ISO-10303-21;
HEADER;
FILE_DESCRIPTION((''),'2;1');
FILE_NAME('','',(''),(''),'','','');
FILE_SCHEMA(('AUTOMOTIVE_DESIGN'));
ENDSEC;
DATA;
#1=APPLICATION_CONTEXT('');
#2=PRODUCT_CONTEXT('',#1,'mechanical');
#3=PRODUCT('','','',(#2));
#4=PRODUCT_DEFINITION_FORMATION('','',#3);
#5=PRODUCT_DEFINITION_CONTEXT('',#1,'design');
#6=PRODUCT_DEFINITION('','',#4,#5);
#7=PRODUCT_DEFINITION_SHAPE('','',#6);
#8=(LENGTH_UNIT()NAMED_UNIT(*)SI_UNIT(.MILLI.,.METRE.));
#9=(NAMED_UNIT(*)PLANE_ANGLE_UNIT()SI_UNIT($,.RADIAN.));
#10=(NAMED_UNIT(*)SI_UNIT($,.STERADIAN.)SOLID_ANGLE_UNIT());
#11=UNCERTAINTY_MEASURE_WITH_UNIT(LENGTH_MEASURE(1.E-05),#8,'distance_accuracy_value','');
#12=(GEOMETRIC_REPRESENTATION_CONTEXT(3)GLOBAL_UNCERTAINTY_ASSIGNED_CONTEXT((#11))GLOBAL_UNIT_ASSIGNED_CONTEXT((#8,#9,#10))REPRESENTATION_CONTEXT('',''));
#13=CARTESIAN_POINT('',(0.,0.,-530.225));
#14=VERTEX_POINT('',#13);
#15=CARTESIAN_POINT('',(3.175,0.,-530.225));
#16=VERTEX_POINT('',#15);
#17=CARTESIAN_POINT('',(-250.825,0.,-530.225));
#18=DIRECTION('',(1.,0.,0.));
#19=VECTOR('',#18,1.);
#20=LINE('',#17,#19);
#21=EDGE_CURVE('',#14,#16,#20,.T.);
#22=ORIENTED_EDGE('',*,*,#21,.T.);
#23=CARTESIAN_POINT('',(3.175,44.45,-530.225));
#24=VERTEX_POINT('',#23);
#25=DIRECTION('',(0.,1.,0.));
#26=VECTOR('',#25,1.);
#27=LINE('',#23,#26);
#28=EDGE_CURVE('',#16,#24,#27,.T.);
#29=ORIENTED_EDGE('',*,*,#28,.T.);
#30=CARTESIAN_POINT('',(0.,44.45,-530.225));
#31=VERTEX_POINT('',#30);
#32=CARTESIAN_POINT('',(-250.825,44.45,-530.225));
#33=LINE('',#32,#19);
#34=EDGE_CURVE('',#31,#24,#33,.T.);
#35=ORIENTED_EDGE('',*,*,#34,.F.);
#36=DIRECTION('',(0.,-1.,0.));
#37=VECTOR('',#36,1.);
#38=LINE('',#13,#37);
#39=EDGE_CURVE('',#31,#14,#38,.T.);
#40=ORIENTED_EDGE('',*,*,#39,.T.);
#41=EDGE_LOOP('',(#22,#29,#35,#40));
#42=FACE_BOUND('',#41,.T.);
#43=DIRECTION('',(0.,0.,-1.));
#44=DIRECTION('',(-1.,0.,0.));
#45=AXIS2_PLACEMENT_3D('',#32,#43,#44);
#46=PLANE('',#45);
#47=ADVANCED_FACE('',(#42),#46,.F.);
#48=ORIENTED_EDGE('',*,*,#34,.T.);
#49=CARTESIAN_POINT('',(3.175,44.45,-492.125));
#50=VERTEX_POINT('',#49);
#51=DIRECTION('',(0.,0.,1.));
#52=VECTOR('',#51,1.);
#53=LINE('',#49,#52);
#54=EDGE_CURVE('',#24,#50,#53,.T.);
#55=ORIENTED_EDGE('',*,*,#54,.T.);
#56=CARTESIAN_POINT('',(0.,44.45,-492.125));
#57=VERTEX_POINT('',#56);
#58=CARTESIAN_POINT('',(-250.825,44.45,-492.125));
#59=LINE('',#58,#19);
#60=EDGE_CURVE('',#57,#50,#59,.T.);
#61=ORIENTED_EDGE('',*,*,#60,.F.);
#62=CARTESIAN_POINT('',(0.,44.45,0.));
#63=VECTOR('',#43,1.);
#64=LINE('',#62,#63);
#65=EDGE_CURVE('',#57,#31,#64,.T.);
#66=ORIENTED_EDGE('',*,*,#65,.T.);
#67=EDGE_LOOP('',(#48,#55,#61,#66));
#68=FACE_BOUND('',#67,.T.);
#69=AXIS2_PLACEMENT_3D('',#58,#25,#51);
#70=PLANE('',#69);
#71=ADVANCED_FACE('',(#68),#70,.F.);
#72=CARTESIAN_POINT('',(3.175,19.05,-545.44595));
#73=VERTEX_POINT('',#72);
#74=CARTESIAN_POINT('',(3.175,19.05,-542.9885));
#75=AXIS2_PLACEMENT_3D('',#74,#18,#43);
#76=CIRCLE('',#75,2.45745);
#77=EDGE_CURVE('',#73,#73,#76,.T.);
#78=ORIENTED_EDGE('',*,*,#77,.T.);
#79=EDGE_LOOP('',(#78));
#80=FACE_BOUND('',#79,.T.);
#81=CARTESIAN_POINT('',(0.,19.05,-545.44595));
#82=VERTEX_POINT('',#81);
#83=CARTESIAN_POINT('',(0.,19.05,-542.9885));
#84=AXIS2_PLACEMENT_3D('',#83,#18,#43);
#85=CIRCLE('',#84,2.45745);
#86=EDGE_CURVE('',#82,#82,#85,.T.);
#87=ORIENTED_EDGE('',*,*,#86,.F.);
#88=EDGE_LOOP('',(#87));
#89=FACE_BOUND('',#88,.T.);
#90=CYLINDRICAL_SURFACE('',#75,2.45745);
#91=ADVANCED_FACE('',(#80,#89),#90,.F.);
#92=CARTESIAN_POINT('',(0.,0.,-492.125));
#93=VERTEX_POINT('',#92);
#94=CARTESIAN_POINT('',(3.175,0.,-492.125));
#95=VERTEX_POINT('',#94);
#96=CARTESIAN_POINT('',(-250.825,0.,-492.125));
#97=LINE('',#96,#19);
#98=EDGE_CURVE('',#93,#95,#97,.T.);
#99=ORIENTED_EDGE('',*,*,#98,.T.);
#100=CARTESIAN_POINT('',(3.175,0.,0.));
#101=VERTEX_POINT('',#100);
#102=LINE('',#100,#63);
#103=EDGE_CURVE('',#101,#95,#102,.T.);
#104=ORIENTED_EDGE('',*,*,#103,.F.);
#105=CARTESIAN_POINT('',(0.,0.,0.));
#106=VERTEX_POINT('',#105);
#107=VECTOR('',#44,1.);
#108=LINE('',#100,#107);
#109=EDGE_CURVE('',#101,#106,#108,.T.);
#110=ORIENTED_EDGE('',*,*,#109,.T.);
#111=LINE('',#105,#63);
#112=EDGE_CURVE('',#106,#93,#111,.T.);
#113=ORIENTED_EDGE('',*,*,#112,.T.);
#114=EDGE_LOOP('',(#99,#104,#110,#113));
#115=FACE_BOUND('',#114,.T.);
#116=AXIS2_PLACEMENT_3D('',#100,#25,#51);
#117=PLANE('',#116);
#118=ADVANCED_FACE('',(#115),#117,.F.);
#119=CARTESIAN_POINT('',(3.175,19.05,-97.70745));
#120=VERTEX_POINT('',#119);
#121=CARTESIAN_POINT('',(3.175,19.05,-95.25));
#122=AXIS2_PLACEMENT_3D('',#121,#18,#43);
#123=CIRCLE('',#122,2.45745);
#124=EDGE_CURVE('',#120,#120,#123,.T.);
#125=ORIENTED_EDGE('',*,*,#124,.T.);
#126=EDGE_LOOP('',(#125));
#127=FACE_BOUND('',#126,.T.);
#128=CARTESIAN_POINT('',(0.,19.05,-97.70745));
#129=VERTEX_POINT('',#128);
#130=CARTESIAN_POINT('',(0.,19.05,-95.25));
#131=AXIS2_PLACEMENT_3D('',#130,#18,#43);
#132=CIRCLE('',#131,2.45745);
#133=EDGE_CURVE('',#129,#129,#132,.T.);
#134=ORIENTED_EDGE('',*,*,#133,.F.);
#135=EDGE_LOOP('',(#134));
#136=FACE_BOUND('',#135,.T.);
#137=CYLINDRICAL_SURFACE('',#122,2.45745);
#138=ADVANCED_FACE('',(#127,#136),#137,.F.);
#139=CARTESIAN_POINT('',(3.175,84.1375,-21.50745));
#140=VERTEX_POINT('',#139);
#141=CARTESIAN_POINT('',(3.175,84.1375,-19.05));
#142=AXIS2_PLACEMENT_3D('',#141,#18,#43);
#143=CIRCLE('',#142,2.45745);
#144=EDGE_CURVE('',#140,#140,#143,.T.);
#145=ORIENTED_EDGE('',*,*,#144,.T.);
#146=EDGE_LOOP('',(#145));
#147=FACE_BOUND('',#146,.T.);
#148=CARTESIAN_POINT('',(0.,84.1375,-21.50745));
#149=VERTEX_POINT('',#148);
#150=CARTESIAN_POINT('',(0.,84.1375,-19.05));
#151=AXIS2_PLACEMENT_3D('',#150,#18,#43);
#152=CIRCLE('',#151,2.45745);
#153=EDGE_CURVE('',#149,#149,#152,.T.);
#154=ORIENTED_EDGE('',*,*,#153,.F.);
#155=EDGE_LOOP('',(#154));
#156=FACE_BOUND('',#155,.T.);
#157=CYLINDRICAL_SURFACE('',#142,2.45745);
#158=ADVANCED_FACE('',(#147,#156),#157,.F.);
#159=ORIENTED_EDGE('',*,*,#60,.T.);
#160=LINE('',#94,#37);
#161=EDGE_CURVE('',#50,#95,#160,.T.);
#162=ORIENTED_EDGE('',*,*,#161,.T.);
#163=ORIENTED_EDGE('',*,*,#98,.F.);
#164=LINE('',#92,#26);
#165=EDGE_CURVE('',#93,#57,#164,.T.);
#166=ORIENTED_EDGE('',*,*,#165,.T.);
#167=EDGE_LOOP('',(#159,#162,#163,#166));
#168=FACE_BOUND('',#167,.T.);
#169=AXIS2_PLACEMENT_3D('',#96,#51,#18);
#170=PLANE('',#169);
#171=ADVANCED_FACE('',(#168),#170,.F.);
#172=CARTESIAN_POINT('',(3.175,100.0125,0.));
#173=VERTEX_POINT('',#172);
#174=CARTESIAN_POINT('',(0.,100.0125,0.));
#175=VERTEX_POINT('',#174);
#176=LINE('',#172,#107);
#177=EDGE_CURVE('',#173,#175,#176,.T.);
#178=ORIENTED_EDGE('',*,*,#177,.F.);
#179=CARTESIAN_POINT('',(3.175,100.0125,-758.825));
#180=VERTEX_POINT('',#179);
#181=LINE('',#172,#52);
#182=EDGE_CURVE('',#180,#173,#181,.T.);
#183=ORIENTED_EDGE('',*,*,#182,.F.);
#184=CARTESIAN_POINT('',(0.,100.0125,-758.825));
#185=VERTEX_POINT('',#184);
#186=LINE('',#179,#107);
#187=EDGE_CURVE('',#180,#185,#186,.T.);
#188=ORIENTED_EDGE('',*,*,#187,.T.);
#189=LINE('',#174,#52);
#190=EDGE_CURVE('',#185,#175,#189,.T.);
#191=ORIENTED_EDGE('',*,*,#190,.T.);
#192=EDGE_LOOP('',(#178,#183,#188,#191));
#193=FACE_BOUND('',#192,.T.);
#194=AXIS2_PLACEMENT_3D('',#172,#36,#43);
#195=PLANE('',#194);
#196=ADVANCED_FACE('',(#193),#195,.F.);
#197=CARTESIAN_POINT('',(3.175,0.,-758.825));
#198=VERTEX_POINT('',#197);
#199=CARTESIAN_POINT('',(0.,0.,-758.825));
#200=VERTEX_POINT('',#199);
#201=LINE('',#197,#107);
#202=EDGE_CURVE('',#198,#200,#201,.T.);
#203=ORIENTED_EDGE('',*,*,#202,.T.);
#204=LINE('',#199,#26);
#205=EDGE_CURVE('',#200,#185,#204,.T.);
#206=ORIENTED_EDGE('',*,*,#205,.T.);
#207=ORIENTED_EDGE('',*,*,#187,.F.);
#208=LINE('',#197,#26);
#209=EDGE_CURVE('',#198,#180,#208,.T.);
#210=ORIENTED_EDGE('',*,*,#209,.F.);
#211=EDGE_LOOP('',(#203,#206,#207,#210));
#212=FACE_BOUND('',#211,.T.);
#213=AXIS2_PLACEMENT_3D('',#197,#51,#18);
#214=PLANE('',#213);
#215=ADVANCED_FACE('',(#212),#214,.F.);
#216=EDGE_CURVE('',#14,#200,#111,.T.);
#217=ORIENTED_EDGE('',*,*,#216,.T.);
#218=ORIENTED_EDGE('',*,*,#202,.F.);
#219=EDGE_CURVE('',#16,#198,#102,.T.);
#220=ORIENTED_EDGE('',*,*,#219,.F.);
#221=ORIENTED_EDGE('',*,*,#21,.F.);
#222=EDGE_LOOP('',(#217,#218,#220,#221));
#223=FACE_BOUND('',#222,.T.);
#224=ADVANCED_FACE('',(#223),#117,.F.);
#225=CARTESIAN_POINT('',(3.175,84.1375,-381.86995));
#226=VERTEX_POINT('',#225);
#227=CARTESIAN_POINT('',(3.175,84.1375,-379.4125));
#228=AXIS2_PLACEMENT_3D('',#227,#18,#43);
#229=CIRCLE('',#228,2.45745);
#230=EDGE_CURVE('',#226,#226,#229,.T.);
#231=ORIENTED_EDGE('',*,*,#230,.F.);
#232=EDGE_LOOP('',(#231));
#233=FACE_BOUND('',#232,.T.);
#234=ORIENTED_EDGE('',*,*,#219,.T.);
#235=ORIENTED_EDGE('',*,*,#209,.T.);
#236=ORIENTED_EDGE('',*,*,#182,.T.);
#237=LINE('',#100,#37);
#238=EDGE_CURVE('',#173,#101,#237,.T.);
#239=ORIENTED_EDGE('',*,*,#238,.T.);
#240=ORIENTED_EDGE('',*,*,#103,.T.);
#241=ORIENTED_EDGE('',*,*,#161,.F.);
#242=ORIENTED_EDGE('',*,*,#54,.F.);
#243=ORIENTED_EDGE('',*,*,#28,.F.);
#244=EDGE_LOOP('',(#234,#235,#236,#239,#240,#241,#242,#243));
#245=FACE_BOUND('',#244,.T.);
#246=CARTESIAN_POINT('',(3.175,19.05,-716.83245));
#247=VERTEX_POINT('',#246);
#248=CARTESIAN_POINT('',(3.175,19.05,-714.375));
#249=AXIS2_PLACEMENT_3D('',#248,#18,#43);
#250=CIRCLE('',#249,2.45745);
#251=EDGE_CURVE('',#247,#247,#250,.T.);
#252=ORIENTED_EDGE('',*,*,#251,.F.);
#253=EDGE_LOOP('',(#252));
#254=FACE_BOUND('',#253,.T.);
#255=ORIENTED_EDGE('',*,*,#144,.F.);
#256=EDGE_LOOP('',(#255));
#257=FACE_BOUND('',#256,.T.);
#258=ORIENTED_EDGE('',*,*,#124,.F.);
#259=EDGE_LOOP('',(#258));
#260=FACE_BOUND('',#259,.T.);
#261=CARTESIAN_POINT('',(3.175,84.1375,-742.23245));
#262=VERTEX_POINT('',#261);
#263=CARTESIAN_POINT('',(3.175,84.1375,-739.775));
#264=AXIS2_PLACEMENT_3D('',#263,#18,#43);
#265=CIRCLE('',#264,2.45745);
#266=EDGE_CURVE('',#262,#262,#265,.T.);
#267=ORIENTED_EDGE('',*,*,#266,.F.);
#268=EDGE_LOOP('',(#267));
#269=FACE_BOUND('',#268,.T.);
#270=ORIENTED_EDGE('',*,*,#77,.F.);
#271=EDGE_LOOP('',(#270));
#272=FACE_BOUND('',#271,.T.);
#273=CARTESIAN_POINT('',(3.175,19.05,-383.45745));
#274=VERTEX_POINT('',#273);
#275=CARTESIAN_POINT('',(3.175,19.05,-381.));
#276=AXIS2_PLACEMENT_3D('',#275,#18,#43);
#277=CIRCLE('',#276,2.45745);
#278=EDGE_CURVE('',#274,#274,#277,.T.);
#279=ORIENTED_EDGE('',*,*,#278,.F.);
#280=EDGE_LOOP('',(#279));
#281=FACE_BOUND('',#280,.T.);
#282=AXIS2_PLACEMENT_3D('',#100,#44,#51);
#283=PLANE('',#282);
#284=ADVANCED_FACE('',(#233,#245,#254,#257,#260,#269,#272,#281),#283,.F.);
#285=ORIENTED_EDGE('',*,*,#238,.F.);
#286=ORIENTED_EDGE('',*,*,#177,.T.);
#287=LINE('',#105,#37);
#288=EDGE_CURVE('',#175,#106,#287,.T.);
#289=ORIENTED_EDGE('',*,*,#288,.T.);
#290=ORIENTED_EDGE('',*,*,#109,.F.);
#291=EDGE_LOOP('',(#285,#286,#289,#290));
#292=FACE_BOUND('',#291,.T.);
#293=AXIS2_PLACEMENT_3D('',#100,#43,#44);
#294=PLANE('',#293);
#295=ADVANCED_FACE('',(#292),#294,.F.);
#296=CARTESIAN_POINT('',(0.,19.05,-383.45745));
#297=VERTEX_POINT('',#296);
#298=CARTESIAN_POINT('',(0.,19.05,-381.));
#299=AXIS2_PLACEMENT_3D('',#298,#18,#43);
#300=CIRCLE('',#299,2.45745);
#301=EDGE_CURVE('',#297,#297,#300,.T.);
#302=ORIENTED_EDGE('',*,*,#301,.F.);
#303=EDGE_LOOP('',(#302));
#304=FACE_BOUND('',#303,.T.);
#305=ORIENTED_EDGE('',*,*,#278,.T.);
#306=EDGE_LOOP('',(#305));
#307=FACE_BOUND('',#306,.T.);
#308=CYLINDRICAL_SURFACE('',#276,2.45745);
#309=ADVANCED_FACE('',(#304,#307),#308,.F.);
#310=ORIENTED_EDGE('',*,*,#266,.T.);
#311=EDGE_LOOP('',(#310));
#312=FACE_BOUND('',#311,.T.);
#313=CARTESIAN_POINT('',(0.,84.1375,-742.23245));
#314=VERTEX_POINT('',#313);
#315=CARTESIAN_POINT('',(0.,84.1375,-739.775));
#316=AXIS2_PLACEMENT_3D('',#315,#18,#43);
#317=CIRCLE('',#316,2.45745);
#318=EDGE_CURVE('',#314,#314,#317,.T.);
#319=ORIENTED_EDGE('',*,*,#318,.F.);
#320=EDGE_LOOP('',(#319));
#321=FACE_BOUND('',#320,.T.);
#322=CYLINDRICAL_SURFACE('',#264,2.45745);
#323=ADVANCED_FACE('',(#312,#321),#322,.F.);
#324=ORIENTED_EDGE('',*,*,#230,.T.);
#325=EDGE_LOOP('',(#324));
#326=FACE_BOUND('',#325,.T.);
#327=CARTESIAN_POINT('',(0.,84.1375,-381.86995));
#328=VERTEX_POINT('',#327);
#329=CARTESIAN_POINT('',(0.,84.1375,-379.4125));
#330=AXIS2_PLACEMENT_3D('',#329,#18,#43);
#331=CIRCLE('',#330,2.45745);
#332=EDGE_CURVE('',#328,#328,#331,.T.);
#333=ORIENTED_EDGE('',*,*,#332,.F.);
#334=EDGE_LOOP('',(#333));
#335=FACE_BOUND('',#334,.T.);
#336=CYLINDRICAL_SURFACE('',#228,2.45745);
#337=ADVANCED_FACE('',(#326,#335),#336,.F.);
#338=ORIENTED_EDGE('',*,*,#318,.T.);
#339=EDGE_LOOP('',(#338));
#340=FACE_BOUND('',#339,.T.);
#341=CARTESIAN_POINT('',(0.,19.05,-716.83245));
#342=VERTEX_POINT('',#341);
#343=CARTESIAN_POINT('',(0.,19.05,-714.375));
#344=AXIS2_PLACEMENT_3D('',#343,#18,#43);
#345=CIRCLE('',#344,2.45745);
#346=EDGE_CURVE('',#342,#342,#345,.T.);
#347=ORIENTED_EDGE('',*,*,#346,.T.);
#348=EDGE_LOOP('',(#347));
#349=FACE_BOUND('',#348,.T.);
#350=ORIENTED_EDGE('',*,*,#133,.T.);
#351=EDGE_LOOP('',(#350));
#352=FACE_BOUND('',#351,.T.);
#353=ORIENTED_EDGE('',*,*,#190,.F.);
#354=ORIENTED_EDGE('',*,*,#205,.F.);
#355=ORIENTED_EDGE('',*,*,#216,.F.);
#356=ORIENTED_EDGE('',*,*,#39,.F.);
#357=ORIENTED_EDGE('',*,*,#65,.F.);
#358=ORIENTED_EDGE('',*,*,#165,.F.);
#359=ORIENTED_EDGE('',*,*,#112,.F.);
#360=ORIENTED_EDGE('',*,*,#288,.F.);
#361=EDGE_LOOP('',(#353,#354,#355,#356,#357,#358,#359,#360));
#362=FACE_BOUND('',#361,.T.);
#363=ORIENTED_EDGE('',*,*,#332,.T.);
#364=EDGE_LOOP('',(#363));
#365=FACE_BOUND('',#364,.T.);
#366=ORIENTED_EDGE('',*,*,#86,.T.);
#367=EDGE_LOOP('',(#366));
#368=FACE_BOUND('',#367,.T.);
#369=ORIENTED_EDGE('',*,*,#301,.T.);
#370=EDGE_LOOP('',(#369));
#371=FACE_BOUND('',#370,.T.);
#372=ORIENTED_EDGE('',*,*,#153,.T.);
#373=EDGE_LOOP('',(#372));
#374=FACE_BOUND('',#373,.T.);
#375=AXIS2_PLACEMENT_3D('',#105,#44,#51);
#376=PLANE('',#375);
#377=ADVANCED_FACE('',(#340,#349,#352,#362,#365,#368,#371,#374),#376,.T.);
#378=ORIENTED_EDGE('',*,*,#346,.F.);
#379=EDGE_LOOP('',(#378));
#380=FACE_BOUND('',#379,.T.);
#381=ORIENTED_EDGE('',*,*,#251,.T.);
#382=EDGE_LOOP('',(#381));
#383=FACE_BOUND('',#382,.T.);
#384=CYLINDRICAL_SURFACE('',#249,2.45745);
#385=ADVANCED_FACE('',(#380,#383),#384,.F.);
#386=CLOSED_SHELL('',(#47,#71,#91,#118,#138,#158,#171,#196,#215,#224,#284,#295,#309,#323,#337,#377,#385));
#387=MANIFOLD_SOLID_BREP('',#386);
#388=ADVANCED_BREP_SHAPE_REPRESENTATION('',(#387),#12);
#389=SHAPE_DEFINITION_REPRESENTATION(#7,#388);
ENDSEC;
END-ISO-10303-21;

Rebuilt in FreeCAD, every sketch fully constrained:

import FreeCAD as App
import Part
import Sketcher

V = App.Vector
Q = App.Units.Quantity

doc = App.newDocument("Part")
params = doc.addObject("Spreadsheet::Sheet", "Params")
for row, (alias, value) in enumerate([
    ("sketch1_width", "3.9375 in"),
    ("sketch1_height", "29.875 in"),
    ("pad1_length", "0.125 in"),
    ("hole_diameter", "0.1935 in"),
    ("sketch3_height", "1.5 in"),
    ("sketch3_width", "1.75 in"),
    ("pocket1_length", "10 in"),
], start=1):
    params.set(f"A{row}", alias)
    params.set(f"B{row}", "=" + value)
    params.setAlias(f"B{row}", alias)

body = doc.addObject("PartDesign::Body", "Body")

sketch1 = doc.addObject("Sketcher::SketchObject", "Sketch")
body.addObject(sketch1)
sketch1.AttachmentSupport = (doc.YZ_Plane, [""])
sketch1.MapMode = "FlatFace"
sketch1.addGeometry([
    Part.LineSegment(V(100, 0, 0), V(0, 0, 0)),
    Part.LineSegment(V(0, 0, 0), V(0, -759, 0)),
    Part.LineSegment(V(0, -759, 0), V(100, -759, 0)),
    Part.LineSegment(V(100, -759, 0), V(100, 0, 0)),
], False)
sketch1.addConstraint([
    Sketcher.Constraint("Coincident", 0, 2, 1, 1),
    Sketcher.Constraint("Coincident", 1, 2, 2, 1),
    Sketcher.Constraint("Coincident", 2, 2, 3, 1),
    Sketcher.Constraint("Coincident", 3, 2, 0, 1),
    Sketcher.Constraint("Horizontal", 0),
    Sketcher.Constraint("Vertical", 1),
    Sketcher.Constraint("Horizontal", 2),
    Sketcher.Constraint("Vertical", 3),
    Sketcher.Constraint("Coincident", 0, 2, -1, 1),
    Sketcher.Constraint("DistanceX", 0, 2, 0, 1, Q("3.9375 in")),
    Sketcher.Constraint("DistanceY", 1, 2, 1, 1, Q("29.875 in")),
])
sketch1.setExpression("Constraints[9]", "Params.sketch1_width")
sketch1.setExpression("Constraints[10]", "Params.sketch1_height")
pad1 = doc.addObject("PartDesign::Pad", "Pad")
body.addObject(pad1)
pad1.Profile = sketch1
pad1.setExpression("Length", "Params.pad1_length")

sketch2 = doc.addObject("Sketcher::SketchObject", "Sketch001")
body.addObject(sketch2)
sketch2.AttachmentSupport = (doc.YZ_Plane, [""])
sketch2.MapMode = "FlatFace"
sketch2.AttachmentOffset = App.Placement(V(0, 0, 0.125 * 25.4), App.Rotation())
sketch2.addGeometry([
    Part.Circle(V(84.1, -19.1, 0), V(0, 0, 1), 2.5),
    Part.Circle(V(84.1, -379.4, 0), V(0, 0, 1), 2.5),
    Part.Circle(V(84.1, -739.8, 0), V(0, 0, 1), 2.5),
    Part.Circle(V(19.1, -95.2, 0), V(0, 0, 1), 2.5),
    Part.Circle(V(19.1, -381, 0), V(0, 0, 1), 2.5),
    Part.Circle(V(19.1, -543, 0), V(0, 0, 1), 2.5),
    Part.Circle(V(19.1, -714.4, 0), V(0, 0, 1), 2.5),
], False)
sketch2.addConstraint([
    Sketcher.Constraint("Equal", 0, 1),
    Sketcher.Constraint("Equal", 1, 2),
    Sketcher.Constraint("Equal", 2, 3),
    Sketcher.Constraint("Equal", 3, 4),
    Sketcher.Constraint("Equal", 4, 5),
    Sketcher.Constraint("Equal", 5, 6),
    Sketcher.Constraint("Vertical", 0, 3, 1, 3),
    Sketcher.Constraint("Vertical", 1, 3, 2, 3),
    Sketcher.Constraint("Vertical", 3, 3, 4, 3),
    Sketcher.Constraint("Vertical", 4, 3, 5, 3),
    Sketcher.Constraint("Vertical", 5, 3, 6, 3),
    Sketcher.Constraint("DistanceY", 4, 3, -1, 1, Q("15 in")),
    Sketcher.Constraint("DistanceY", 3, 3, 0, 3, Q("3 in")),
    Sketcher.Constraint("DistanceY", 2, 3, 6, 3, Q("1 in")),
    Sketcher.Constraint("Diameter", 0, Q("0.1935 in")),
    Sketcher.Constraint("DistanceY", 0, 3, -1, 1, Q("0.75 in")),
    Sketcher.Constraint("DistanceX", -1, 1, 3, 3, Q("0.75 in")),
    Sketcher.Constraint("DistanceY", 5, 3, 1, 3, Q("6.44 in")),
    Sketcher.Constraint("DistanceX", -1, 1, 0, 3, Q("3.3125 in")),
    Sketcher.Constraint("DistanceY", 1, 3, -1, 1, Q("14.9375 in")),
    Sketcher.Constraint("DistanceY", 2, 3, -1, 1, Q("29.125 in")),
])
doc.recompute()
hole = doc.addObject("PartDesign::Hole", "Hole")
body.addObject(hole)
hole.Profile = sketch2
hole.ThreadType = "None"
hole.setExpression("Diameter", "Params.hole_diameter")
hole.DepthType = "ThroughAll"

sketch3 = doc.addObject("Sketcher::SketchObject", "Sketch002")
body.addObject(sketch3)
sketch3.AttachmentSupport = (doc.YZ_Plane, [""])
sketch3.MapMode = "FlatFace"
sketch3.AttachmentOffset = App.Placement(V(0, 0, 0.125 * 25.4), App.Rotation())
sketch3.addGeometry([
    Part.LineSegment(V(44, -492, 0), V(0, -492, 0)),
    Part.LineSegment(V(0, -492, 0), V(0, -530, 0)),
    Part.LineSegment(V(0, -530, 0), V(44, -530, 0)),
    Part.LineSegment(V(44, -530, 0), V(44, -492, 0)),
], False)
sketch3.addConstraint([
    Sketcher.Constraint("Coincident", 0, 2, 1, 1),
    Sketcher.Constraint("Coincident", 1, 2, 2, 1),
    Sketcher.Constraint("Coincident", 2, 2, 3, 1),
    Sketcher.Constraint("Coincident", 3, 2, 0, 1),
    Sketcher.Constraint("Horizontal", 0),
    Sketcher.Constraint("Vertical", 1),
    Sketcher.Constraint("Horizontal", 2),
    Sketcher.Constraint("Vertical", 3),
    Sketcher.Constraint("PointOnObject", 0, 2, -2),
    Sketcher.Constraint("DistanceY", 1, 2, 1, 1, Q("1.5 in")),
    Sketcher.Constraint("DistanceX", 0, 2, 0, 1, Q("1.75 in")),
    Sketcher.Constraint("DistanceY", 0, 2, -1, 1, Q("19.375 in")),
])
sketch3.setExpression("Constraints[9]", "Params.sketch3_height")
sketch3.setExpression("Constraints[10]", "Params.sketch3_width")
pocket1 = doc.addObject("PartDesign::Pocket", "Pocket")
body.addObject(pocket1)
pocket1.Profile = sketch3
pocket1.setExpression("Length", "Params.pocket1_length")

doc.recompute()
